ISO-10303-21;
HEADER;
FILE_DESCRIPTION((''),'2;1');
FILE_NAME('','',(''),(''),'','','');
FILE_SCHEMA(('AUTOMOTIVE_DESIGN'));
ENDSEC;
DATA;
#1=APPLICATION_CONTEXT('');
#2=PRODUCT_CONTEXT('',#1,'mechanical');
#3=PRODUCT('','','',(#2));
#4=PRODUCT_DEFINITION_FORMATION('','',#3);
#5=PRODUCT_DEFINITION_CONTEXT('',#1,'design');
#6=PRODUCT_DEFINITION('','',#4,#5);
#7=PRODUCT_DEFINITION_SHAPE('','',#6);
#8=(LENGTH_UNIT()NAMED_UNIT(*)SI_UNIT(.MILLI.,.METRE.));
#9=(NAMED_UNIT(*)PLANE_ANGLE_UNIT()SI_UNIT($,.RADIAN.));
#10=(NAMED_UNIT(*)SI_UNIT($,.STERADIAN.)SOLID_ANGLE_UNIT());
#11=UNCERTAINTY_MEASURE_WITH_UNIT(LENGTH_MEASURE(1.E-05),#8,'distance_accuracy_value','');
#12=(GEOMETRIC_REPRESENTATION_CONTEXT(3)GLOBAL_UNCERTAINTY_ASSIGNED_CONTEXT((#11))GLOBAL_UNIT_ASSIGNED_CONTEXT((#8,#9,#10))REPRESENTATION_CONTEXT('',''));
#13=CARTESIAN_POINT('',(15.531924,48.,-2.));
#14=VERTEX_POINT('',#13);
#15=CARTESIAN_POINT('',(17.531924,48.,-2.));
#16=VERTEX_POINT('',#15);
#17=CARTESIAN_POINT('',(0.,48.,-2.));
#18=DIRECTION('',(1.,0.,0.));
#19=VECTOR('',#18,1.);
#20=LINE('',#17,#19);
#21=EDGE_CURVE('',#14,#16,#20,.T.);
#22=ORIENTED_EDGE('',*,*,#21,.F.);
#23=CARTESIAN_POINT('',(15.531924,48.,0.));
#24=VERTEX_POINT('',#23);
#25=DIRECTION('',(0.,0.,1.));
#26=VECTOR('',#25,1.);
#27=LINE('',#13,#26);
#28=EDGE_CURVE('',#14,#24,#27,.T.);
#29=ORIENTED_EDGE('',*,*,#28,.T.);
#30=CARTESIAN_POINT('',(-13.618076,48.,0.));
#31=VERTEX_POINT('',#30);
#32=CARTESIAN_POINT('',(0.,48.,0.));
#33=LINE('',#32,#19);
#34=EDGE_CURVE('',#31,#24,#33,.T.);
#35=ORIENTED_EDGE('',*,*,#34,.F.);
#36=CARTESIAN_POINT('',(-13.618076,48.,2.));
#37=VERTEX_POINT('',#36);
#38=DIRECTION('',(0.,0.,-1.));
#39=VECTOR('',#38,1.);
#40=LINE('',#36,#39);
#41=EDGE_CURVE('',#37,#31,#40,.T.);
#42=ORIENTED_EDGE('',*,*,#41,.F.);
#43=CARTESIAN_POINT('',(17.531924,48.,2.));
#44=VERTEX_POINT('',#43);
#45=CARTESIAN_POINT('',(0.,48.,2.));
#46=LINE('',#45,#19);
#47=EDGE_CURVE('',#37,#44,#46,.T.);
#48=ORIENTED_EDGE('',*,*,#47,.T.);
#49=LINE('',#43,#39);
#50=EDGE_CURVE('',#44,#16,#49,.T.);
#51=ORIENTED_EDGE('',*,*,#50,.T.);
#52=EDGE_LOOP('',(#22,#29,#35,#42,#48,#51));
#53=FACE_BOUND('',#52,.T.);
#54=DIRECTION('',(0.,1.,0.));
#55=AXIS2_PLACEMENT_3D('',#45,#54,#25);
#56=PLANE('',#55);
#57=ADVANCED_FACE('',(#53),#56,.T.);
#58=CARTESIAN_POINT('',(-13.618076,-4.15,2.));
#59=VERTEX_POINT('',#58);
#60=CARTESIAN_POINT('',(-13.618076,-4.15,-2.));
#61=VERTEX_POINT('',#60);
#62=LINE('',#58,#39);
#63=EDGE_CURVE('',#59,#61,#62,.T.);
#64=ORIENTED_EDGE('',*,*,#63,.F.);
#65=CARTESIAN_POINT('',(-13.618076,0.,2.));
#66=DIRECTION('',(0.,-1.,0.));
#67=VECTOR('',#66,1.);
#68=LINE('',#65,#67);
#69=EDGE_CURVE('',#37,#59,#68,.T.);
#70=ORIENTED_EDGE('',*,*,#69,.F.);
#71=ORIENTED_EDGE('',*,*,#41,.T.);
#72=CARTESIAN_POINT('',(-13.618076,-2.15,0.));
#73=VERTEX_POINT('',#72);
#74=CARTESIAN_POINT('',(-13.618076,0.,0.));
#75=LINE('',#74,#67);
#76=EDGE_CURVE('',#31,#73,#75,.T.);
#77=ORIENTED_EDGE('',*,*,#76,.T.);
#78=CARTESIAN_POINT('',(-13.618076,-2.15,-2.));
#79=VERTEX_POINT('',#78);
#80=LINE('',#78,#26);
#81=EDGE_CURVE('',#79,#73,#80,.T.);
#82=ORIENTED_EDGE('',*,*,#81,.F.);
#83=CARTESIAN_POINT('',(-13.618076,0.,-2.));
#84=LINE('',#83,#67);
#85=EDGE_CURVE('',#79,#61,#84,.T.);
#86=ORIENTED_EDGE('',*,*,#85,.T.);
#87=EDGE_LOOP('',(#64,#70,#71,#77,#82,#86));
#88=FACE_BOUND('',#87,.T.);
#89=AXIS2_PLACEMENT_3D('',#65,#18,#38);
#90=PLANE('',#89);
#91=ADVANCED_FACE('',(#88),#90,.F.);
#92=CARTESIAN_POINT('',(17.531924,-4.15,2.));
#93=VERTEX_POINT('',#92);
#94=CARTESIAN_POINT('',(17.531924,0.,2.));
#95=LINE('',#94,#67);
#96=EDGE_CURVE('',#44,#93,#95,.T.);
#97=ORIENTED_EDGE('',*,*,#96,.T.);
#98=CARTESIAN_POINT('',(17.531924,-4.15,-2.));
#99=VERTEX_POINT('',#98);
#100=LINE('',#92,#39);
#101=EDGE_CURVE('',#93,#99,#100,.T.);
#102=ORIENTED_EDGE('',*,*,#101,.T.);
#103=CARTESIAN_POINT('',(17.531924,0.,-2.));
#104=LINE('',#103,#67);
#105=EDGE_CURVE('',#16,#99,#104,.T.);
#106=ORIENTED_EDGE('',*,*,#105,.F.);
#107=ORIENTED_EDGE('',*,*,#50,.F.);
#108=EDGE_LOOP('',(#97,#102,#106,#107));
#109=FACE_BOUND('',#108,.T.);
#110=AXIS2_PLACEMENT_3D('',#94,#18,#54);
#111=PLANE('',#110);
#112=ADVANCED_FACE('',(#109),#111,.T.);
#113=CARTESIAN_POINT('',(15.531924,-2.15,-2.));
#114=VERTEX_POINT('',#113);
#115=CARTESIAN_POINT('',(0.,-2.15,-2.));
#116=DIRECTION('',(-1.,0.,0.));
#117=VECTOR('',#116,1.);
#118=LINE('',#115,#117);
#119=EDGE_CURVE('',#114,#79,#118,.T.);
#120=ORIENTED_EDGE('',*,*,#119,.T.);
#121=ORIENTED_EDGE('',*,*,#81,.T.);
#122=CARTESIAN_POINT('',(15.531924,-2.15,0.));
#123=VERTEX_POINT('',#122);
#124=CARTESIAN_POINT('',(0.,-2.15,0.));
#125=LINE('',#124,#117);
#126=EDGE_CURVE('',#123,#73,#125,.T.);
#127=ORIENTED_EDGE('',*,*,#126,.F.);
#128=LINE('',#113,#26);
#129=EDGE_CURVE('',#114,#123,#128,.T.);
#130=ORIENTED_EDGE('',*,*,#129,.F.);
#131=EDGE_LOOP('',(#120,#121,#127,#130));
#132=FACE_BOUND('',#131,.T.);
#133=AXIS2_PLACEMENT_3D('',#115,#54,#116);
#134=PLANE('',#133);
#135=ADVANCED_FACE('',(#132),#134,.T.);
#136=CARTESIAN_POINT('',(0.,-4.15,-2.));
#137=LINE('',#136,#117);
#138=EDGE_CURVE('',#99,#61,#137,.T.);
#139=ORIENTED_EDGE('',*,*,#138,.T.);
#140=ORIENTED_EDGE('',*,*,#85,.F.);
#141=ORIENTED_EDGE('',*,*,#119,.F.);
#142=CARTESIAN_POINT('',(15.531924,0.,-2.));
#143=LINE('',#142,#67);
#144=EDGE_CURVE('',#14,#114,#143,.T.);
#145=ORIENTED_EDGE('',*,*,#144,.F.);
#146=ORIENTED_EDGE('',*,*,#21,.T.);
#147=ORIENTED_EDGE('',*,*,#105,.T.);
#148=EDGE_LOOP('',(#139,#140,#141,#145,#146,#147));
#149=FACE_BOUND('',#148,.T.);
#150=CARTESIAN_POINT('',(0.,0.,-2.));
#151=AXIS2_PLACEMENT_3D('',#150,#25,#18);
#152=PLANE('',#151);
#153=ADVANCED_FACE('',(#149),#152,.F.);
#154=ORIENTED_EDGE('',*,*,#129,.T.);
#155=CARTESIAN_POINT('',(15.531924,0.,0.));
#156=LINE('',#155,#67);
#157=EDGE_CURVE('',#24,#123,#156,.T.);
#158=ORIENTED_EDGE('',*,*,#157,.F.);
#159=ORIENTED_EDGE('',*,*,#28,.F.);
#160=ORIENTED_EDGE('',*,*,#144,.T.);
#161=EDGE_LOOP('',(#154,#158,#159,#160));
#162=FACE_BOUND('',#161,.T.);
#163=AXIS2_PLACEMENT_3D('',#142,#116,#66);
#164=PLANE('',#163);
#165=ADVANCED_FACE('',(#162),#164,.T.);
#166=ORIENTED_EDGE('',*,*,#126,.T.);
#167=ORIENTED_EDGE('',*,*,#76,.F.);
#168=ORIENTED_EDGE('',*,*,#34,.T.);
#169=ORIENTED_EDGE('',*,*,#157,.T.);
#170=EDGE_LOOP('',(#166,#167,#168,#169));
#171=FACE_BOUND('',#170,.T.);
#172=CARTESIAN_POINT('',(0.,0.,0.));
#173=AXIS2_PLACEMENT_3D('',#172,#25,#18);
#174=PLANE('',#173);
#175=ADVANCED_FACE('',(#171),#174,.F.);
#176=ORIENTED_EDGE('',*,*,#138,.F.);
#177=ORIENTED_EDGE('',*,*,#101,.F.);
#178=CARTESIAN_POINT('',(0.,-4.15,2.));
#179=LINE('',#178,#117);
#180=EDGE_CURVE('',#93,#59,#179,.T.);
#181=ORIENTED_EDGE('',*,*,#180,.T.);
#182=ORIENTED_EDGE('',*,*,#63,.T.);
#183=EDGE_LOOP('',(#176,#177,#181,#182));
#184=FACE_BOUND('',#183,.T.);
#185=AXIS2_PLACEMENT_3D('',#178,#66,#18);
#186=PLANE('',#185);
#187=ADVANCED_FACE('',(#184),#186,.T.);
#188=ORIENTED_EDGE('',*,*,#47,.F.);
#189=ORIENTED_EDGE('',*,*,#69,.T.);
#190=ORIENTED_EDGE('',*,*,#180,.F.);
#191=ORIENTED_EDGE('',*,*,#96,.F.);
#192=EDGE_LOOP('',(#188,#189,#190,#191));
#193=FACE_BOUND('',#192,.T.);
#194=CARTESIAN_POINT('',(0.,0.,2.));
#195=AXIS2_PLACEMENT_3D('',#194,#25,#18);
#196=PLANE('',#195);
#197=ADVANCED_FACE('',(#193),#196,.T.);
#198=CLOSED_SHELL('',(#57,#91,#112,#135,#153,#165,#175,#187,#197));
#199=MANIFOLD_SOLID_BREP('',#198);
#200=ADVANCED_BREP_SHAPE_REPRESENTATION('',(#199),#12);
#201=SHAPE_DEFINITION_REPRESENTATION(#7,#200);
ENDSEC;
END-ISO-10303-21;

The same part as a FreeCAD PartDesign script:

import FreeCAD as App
import Part
import Sketcher
from FreeCAD import Vector
Q = App.Units.Quantity

doc = App.newDocument("Part")
params = doc.addObject("Spreadsheet::Sheet", "Params")
for row, (alias, value) in enumerate([
    ("sketch1_width", "31.15 mm"),
    ("sketch1_height", "52.15 mm"),
    ("pad1_length", "2 mm"),
    ("sketch2_width", "2 mm"),
    ("sketch2_width2", "31.15 mm"),
    ("sketch2_height", "52.15 mm"),
    ("pad2_length", "2 mm"),
], start=1):
    params.set(f"A{row}", alias)
    params.set(f"B{row}", "=" + value)
    params.setAlias(f"B{row}", alias)

body = doc.addObject("PartDesign::Body", "Body")

# Sketch on XY plane
sketch1 = body.newObject("Sketcher::SketchObject", "Sketch")
sketch1.AttachmentSupport = (doc.getObject("XY_Plane"), [""])
sketch1.MapMode = "FlatFace"
sketch1.addGeometry([
    Part.LineSegment(Vector(-14, 48, 0), Vector(-14, -4, 0)),
    Part.LineSegment(Vector(-14, -4, 0), Vector(18, -4, 0)),
    Part.LineSegment(Vector(18, -4, 0), Vector(18, 48, 0)),
    Part.LineSegment(Vector(18, 48, 0), Vector(-14, 48, 0)),
], False)
sketch1.addConstraint([
    Sketcher.Constraint("Coincident", 0, 2, 1, 1),
    Sketcher.Constraint("Coincident", 1, 2, 2, 1),
    Sketcher.Constraint("Coincident", 2, 2, 3, 1),
    Sketcher.Constraint("Coincident", 3, 2, 0, 1),
    Sketcher.Constraint("Vertical", 0),
    Sketcher.Constraint("Horizontal", 1),
    Sketcher.Constraint("Vertical", 2),
    Sketcher.Constraint("Horizontal", 3),
    Sketcher.Constraint("DistanceY", -1, 1, 2, 2, Q("48 mm")),
    Sketcher.Constraint("DistanceX", 1, 1, 1, 2, Q("31.15 mm")),
    Sketcher.Constraint("DistanceY", 0, 2, 0, 1, Q("52.15 mm")),
    Sketcher.Constraint("DistanceX", 0, 2, -1, 1, Q("13.618076 mm")),
])
sketch1.setExpression("Constraints[9]", "Params.sketch1_width")
sketch1.setExpression("Constraints[10]", "Params.sketch1_height")
pad1 = body.newObject("PartDesign::Pad", "Pad")
pad1.Profile = sketch1
pad1.setExpression("Length", "Params.pad1_length")

# Sketch on XY plane
sketch2 = body.newObject("Sketcher::SketchObject", "Sketch001")
sketch2.AttachmentSupport = (doc.getObject("XY_Plane"), [""])
sketch2.MapMode = "FlatFace"
sketch2.addGeometry([
    Part.LineSegment(Vector(-13.6, -2.1, 0), Vector(-13.6, -4.2, 0)),  # 0
    Part.LineSegment(Vector(-13.6, -4.2, 0), Vector(17.5, -4.2, 0)),  # 1
    Part.LineSegment(Vector(17.5, -4.2, 0), Vector(17.5, 48, 0)),  # 2
    Part.LineSegment(Vector(17.5, 48, 0), Vector(15.5, 48, 0)),  # 3
    Part.LineSegment(Vector(15.5, 48, 0), Vector(15.5, -2.1, 0)),  # 4
    Part.LineSegment(Vector(15.5, -2.1, 0), Vector(-13.6, -2.1, 0)),  # 5
], False)
sketch2.addConstraint([
    Sketcher.Constraint("Coincident", 0, 2, 1, 1),
    Sketcher.Constraint("Coincident", 1, 2, 2, 1),
    Sketcher.Constraint("Coincident", 2, 2, 3, 1),
    Sketcher.Constraint("Coincident", 3, 2, 4, 1),
    Sketcher.Constraint("Coincident", 4, 2, 5, 1),
    Sketcher.Constraint("Coincident", 5, 2, 0, 1),
    Sketcher.Constraint("Vertical", 0),
    Sketcher.Constraint("Horizontal", 1),
    Sketcher.Constraint("Vertical", 2),
    Sketcher.Constraint("Horizontal", 3),
    Sketcher.Constraint("Vertical", 4),
    Sketcher.Constraint("Horizontal", 5),
    Sketcher.Constraint("Equal", 3, 0),
    Sketcher.Constraint("DistanceX", 3, 2, 3, 1, Q("2 mm")),
    Sketcher.Constraint("DistanceY", -1, 1, 2, 2, Q("48 mm")),
    Sketcher.Constraint("DistanceX", 1, 1, 1, 2, Q("31.15 mm")),
    Sketcher.Constraint("DistanceY", 2, 1, 2, 2, Q("52.15 mm")),
    Sketcher.Constraint("DistanceX", 0, 2, -1, 1, Q("13.618076 mm")),
])
sketch2.setExpression("Constraints[13]", "Params.sketch2_width")
sketch2.setExpression("Constraints[15]", "Params.sketch2_width2")
sketch2.setExpression("Constraints[16]", "Params.sketch2_height")
pad2 = body.newObject("PartDesign::Pad", "Pad001")
pad2.Profile = sketch2
pad2.setExpression("Length", "Params.pad2_length")
pad2.Reversed = True

doc.recompute()
